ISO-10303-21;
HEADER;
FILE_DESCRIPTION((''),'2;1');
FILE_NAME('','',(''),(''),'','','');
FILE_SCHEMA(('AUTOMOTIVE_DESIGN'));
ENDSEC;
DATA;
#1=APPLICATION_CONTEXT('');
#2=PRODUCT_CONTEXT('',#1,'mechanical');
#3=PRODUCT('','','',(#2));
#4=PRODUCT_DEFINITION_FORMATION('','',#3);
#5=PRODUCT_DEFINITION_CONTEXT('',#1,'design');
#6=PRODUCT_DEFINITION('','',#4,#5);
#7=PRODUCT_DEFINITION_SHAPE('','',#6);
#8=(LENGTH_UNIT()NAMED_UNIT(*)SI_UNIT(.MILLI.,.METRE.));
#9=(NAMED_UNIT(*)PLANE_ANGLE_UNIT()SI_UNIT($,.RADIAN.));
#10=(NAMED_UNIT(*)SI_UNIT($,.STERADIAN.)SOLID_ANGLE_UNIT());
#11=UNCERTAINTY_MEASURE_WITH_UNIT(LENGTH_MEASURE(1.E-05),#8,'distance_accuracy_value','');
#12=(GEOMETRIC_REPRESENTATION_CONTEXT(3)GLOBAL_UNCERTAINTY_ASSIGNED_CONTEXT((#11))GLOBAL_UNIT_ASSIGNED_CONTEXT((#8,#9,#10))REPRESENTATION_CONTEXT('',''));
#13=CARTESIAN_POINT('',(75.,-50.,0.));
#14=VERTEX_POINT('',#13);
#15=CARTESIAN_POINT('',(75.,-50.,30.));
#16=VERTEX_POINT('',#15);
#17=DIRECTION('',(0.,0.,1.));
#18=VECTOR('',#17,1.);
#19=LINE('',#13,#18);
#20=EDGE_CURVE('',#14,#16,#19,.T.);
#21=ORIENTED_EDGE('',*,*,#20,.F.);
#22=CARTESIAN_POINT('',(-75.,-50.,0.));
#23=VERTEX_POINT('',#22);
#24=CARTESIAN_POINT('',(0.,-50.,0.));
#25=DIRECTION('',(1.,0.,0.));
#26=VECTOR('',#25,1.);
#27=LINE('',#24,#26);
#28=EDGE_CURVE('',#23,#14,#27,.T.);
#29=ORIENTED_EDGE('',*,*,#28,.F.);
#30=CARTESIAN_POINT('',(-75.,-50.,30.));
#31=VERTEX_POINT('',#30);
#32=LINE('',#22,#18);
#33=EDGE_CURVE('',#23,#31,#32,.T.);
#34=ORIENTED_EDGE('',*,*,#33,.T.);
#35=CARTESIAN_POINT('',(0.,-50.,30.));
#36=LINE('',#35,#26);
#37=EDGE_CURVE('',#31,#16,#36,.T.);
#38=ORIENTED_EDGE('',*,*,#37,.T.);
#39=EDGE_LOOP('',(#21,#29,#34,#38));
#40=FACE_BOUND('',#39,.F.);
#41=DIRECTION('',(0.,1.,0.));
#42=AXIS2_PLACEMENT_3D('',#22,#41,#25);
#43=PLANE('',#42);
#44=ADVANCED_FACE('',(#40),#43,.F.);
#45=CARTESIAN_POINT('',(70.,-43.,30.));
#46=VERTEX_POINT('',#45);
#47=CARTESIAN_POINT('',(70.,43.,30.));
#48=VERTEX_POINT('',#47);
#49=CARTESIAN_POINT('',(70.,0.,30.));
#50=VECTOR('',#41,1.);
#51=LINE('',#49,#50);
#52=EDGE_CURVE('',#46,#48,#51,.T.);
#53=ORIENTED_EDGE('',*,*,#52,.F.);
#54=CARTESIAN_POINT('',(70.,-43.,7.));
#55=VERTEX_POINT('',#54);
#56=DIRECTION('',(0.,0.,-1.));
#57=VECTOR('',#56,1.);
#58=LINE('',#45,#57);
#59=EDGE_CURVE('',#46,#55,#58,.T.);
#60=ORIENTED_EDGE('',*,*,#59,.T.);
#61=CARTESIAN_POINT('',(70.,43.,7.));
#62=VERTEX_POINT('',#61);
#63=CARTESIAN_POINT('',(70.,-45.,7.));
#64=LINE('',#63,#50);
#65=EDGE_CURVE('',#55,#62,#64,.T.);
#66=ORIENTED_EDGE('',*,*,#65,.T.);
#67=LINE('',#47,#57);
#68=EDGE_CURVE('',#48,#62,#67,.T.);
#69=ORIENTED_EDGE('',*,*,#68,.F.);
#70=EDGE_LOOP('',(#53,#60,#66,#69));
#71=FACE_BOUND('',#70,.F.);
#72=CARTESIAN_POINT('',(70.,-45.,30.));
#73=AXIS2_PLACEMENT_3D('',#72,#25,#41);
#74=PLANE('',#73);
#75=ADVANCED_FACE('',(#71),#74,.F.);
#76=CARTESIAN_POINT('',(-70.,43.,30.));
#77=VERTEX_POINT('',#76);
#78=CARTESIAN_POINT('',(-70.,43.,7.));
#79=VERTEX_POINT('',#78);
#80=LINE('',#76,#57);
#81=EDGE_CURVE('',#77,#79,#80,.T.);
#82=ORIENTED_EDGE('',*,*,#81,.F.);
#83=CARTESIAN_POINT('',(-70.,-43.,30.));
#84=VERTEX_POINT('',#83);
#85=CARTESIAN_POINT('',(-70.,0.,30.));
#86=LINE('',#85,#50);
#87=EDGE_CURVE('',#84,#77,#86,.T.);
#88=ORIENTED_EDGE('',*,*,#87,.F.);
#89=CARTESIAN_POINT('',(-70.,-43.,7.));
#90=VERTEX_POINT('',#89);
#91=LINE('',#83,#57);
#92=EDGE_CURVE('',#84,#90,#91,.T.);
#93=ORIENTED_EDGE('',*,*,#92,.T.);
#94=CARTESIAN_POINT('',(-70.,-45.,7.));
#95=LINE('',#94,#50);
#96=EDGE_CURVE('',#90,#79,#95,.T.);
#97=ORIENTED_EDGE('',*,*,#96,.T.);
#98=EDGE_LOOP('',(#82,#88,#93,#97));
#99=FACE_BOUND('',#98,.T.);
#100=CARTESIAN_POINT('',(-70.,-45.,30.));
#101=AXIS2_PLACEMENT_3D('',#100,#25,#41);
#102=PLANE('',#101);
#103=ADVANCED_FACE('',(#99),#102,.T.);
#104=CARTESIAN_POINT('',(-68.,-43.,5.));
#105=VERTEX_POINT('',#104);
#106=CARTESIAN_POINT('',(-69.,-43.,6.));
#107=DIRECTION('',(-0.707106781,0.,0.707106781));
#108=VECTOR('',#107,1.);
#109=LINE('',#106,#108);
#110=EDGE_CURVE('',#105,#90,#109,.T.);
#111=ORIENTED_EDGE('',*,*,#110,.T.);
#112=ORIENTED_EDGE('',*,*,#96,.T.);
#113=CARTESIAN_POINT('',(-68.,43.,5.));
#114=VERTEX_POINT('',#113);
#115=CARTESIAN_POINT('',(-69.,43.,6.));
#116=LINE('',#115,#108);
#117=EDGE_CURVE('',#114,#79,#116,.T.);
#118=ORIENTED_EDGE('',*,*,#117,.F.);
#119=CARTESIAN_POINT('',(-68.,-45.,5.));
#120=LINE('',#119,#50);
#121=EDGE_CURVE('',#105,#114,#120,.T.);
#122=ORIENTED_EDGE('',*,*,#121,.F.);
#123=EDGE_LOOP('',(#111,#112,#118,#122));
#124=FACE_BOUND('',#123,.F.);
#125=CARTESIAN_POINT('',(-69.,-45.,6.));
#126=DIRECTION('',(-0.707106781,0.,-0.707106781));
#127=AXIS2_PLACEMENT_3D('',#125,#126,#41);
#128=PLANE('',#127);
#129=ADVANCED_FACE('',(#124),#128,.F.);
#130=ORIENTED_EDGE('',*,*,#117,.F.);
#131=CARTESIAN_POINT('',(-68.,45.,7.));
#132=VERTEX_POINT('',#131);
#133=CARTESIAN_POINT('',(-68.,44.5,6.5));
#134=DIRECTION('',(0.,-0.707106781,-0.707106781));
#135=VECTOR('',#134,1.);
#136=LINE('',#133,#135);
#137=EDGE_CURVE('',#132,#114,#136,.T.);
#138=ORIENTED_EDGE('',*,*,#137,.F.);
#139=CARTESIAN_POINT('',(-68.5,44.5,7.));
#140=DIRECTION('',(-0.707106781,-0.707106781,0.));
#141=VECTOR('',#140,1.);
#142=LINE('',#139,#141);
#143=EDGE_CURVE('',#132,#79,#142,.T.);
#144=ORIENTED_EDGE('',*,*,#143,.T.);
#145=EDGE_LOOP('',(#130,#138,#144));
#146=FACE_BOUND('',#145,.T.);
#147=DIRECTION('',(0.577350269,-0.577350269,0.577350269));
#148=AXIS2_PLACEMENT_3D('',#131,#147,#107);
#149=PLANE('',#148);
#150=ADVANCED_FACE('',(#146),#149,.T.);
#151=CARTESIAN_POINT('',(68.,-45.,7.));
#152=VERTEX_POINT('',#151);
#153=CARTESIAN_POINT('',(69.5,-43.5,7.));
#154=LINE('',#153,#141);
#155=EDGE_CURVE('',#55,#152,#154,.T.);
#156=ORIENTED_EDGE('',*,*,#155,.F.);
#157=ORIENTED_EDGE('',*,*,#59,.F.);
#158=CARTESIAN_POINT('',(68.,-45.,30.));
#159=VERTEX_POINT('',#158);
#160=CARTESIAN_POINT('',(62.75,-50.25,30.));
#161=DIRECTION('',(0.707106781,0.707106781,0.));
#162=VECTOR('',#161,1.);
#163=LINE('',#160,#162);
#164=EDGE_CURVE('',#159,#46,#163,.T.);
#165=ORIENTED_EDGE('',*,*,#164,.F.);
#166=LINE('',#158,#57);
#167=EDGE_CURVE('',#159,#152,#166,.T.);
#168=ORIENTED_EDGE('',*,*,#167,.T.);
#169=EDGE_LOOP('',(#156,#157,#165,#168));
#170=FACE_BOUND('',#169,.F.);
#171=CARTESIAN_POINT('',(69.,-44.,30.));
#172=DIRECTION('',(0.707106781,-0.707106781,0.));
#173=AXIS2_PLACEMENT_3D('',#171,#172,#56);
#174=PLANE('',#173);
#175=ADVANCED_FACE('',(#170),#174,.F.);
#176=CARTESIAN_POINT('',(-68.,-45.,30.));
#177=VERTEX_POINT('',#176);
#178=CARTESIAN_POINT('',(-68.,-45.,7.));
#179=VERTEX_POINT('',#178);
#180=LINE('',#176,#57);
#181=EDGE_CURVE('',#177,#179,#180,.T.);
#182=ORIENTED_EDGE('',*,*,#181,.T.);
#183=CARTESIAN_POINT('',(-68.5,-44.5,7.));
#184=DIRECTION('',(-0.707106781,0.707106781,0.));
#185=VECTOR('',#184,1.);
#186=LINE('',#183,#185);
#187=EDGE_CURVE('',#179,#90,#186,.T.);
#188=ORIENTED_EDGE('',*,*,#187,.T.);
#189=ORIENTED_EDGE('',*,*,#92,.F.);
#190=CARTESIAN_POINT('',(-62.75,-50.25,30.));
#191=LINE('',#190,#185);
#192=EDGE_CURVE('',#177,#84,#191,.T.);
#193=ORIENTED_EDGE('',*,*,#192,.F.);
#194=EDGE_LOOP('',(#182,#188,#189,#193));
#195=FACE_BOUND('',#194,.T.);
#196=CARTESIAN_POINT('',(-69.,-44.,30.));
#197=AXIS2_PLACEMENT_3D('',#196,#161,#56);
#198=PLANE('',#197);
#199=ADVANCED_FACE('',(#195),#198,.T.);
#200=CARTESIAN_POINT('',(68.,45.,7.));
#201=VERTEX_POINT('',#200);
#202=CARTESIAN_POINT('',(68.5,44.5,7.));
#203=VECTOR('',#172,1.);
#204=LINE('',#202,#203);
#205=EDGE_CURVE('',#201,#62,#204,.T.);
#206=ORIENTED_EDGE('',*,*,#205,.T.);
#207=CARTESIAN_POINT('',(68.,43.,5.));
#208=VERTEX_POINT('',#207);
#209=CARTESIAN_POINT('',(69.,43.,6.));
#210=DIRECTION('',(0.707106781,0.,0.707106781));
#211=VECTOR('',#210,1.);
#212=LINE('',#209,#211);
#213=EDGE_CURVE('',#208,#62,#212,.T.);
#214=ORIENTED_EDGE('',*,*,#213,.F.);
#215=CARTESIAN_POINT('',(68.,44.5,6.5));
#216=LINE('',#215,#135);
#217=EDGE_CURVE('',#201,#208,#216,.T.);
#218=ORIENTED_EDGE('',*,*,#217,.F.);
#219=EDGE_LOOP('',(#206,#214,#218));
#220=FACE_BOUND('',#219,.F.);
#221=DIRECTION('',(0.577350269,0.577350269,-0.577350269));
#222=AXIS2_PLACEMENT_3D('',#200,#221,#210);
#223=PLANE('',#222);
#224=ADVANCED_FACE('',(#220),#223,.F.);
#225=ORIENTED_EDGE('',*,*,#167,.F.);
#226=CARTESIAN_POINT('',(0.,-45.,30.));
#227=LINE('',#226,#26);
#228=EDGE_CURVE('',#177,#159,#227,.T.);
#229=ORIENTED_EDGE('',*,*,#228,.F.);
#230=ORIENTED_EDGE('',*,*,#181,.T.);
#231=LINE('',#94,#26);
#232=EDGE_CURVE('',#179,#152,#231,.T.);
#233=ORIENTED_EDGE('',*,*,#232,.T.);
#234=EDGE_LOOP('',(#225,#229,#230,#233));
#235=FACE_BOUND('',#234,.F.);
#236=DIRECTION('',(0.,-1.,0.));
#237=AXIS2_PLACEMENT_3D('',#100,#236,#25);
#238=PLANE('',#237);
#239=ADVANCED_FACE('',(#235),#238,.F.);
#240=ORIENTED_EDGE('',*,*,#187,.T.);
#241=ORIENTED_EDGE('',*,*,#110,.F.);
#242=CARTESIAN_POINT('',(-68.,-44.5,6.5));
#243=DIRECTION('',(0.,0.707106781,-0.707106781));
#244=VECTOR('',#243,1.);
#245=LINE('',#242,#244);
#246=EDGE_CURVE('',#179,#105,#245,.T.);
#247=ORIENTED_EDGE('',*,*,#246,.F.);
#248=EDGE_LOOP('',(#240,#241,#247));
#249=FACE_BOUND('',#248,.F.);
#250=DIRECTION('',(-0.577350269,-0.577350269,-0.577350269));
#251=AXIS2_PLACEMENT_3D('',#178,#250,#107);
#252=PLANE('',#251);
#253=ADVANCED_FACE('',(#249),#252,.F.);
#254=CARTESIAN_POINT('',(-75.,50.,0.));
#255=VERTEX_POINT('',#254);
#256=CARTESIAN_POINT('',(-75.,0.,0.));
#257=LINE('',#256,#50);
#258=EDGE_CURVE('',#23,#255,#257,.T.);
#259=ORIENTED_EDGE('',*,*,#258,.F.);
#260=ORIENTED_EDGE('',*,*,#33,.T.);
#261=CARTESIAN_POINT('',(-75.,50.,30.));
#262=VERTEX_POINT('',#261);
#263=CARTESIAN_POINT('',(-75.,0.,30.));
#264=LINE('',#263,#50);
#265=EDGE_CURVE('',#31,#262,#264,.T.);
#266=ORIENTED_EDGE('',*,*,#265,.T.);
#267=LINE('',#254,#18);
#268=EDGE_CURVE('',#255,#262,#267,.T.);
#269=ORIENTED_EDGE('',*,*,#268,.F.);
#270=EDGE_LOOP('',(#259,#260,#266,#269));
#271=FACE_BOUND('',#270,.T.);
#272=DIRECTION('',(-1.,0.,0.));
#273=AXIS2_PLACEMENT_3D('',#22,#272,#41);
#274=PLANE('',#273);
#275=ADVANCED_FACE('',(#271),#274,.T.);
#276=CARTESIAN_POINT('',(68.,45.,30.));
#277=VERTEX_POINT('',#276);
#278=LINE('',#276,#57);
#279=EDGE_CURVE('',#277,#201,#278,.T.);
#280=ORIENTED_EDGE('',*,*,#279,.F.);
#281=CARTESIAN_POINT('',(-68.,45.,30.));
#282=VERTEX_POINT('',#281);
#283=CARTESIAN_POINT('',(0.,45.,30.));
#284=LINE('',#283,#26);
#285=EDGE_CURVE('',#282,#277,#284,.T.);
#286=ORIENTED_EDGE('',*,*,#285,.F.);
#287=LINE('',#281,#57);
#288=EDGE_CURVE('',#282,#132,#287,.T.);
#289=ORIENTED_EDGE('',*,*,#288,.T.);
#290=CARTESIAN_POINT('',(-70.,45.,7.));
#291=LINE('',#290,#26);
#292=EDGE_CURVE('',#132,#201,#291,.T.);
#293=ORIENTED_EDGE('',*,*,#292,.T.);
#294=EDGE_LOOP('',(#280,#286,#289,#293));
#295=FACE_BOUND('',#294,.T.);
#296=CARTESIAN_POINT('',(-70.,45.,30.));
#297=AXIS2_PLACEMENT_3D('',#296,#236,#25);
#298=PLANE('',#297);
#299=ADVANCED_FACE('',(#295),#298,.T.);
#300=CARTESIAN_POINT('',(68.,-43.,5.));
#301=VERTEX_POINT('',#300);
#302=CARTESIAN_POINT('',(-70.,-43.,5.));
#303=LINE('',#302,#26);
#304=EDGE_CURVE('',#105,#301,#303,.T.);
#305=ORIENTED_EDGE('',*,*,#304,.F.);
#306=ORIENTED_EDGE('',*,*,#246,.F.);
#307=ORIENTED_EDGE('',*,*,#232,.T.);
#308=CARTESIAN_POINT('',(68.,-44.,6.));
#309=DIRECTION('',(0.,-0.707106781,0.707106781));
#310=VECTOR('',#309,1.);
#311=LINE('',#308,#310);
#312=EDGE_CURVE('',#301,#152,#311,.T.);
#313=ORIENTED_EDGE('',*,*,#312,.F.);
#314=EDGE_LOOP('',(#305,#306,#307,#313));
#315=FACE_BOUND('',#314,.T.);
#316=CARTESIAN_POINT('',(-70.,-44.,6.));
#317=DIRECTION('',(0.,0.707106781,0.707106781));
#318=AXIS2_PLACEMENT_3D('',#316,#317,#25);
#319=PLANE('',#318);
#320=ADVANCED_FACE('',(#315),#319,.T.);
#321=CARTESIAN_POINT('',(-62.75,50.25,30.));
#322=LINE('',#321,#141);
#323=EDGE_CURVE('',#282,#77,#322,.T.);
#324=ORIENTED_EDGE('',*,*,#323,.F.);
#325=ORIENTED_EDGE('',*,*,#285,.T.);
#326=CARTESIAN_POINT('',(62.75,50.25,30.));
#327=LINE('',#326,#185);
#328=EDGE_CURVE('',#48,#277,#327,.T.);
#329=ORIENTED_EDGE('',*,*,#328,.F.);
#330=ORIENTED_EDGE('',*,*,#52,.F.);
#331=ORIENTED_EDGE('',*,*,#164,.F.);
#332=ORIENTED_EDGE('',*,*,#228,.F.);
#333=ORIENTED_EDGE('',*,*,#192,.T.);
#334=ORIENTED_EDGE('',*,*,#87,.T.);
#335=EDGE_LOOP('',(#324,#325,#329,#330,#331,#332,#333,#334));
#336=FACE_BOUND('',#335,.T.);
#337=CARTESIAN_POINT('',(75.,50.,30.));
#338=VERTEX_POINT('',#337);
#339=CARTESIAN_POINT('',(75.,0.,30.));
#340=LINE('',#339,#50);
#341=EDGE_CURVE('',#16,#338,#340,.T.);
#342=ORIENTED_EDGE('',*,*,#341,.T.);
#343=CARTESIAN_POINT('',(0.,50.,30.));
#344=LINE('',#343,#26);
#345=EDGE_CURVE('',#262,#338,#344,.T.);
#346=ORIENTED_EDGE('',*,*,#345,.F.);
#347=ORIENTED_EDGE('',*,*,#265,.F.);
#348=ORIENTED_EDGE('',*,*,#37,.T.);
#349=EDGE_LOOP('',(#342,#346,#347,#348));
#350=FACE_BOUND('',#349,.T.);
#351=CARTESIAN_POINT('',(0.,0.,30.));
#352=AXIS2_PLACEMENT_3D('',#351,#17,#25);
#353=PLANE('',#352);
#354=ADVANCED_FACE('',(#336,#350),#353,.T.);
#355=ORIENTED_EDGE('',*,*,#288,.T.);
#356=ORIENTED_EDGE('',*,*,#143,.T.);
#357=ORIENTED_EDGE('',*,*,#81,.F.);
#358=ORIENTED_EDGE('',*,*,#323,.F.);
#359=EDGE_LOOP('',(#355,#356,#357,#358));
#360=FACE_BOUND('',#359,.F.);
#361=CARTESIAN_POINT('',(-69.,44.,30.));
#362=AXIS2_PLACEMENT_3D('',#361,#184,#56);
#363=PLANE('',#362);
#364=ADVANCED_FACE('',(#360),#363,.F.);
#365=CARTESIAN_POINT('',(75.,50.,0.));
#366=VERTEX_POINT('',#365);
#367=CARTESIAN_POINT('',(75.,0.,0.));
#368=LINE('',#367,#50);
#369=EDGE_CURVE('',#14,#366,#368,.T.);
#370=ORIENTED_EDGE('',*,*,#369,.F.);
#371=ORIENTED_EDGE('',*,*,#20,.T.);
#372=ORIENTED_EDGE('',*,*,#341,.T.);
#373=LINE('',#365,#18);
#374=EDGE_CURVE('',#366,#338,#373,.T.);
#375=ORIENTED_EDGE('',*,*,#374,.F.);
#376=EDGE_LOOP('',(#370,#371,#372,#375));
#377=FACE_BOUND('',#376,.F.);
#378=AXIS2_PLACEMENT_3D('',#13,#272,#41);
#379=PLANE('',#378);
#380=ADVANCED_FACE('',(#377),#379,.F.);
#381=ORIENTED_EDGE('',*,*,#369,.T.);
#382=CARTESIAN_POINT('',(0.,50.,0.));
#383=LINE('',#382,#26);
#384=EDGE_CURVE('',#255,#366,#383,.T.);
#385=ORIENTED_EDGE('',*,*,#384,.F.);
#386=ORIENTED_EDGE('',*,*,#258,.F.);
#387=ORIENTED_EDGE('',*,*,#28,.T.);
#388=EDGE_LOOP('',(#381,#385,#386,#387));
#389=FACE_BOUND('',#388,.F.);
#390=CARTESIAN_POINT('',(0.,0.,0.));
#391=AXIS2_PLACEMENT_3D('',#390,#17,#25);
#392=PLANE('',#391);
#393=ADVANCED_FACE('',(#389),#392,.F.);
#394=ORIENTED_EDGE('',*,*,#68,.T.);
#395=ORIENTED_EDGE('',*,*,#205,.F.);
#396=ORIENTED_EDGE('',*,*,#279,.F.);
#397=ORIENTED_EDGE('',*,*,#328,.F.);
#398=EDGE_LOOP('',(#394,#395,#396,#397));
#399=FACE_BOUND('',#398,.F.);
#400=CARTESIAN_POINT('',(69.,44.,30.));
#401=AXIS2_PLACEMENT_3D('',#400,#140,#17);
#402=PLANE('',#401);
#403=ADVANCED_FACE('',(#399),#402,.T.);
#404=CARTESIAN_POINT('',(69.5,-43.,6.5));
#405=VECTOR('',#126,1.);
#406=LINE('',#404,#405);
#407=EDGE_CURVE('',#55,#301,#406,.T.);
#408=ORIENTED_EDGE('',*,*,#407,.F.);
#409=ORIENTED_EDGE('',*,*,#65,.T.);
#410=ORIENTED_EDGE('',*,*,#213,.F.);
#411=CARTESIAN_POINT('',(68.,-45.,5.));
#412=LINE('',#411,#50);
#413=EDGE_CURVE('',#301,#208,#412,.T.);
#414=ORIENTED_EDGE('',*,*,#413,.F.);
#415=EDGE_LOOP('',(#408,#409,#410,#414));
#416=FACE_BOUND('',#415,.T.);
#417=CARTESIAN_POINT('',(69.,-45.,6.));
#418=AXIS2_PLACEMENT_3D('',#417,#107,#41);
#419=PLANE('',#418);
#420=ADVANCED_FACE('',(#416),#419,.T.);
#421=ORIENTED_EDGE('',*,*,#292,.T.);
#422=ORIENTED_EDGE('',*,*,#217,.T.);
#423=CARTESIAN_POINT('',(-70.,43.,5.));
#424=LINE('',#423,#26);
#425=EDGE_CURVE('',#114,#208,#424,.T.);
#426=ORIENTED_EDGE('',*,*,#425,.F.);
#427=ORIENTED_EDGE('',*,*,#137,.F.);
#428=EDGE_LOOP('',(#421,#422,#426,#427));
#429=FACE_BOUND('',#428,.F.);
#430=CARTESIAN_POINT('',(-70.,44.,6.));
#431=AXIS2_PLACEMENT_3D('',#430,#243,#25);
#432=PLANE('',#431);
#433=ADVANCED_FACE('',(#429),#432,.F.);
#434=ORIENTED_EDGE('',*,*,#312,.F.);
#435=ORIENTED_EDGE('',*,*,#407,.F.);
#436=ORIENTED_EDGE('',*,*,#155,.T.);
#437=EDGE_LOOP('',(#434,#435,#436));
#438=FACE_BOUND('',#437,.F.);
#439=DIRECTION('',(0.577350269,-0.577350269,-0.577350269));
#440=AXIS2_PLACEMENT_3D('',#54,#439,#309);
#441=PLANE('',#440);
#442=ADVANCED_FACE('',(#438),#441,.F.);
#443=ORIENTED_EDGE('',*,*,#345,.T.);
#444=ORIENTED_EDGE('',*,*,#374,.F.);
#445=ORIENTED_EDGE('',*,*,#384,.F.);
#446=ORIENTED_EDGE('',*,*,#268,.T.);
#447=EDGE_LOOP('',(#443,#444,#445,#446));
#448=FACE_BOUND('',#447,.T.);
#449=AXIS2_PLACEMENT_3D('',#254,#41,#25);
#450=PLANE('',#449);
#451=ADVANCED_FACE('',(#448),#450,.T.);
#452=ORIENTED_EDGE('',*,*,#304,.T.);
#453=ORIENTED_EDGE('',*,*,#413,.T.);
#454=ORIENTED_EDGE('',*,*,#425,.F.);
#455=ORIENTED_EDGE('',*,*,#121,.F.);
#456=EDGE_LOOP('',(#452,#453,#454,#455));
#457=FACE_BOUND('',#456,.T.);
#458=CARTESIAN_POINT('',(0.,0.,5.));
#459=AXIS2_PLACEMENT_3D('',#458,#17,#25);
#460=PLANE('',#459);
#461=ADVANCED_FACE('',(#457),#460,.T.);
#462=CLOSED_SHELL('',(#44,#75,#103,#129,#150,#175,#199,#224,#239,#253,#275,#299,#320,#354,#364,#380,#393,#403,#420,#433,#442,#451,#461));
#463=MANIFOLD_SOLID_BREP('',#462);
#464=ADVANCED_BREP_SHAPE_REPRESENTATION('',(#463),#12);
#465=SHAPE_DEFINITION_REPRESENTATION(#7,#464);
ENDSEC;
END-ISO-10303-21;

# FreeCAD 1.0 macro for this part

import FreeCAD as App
import Part
import Sketcher


def edges_at(feature, points):
    """Names of the edges that pass closest to the given points."""
    edges = feature.Shape.Edges
    near = lambda p: min(range(len(edges)), key=lambda i: edges[i].distToShape(Part.Vertex(*p))[0])
    return sorted({f"Edge{near(p) + 1}" for p in points})


def add_polygon(sketch, points):
    """Adds a closed chain of lines whose ends are joined by coincident constraints."""
    first, n = sketch.GeometryCount, len(points)
    for a, b in zip(points, points[1:] + points[:1]):
        sketch.addGeometry(Part.LineSegment(App.Vector(*a, 0), App.Vector(*b, 0)), False)
    for i in range(n):
        sketch.addConstraint(Sketcher.Constraint("Coincident", first + i, 2, first + (i + 1) % n, 1))

doc = App.newDocument("Part")
body = doc.addObject("PartDesign::Body", "Body")

# Sketch on XY plane
sketch1 = doc.addObject("Sketcher::SketchObject", "Sketch")
body.addObject(sketch1)
sketch1.AttachmentSupport = (doc.XY_Plane, [""])
sketch1.MapMode = "FlatFace"
add_polygon(sketch1, [(-75, 50), (-75, -50), (75, -50), (75, 50)])  # lines 0-3
sketch1.addConstraint([
    Sketcher.Constraint("Vertical", 0),
    Sketcher.Constraint("Horizontal", 1),
    Sketcher.Constraint("Vertical", 2),
    Sketcher.Constraint("Horizontal", 3),
    Sketcher.Constraint("Symmetric", 0, 2, 2, 2, -1, 1),
    Sketcher.Constraint("DistanceX", 1, 1, 1, 2, 150.0),
    Sketcher.Constraint("DistanceY", 0, 2, 0, 1, 100.0),
])
pad1 = doc.addObject("PartDesign::Pad", "Pad")
body.addObject(pad1)
pad1.Profile = sketch1
pad1.Length = 30

# Sketch on XY plane
sketch2 = doc.addObject("Sketcher::SketchObject", "Sketch001")
body.addObject(sketch2)
sketch2.AttachmentSupport = (doc.XY_Plane, [""])
sketch2.MapMode = "FlatFace"
sketch2.AttachmentOffset = App.Placement(App.Vector(0, 0, 30), App.Rotation())
add_polygon(sketch2, [(-70, 45), (-70, -45), (70, -45), (70, 45)])  # lines 0-3
sketch2.addConstraint([
    Sketcher.Constraint("Vertical", 0),
    Sketcher.Constraint("Horizontal", 1),
    Sketcher.Constraint("Vertical", 2),
    Sketcher.Constraint("Horizontal", 3),
    Sketcher.Constraint("Symmetric", 0, 2, 2, 2, -1, 1),
    Sketcher.Constraint("DistanceX", 1, 1, 1, 2, 140.0),
    Sketcher.Constraint("DistanceY", 0, 2, 0, 1, 90.0),
])
pocket1 = doc.addObject("PartDesign::Pocket", "Pocket")
body.addObject(pocket1)
pocket1.Profile = sketch2
pocket1.Length = 25
doc.recompute()

chamfer = doc.addObject("PartDesign::Chamfer", "Chamfer")
body.addObject(chamfer)
chamfer.Base = (pocket1, edges_at(pocket1, [
    (-70, 0, 5),
    (0, -45, 5),
    (70, 0, 5),
    (0, 45, 5),
    (-70, 45, 17.5),
    (70, 45, 17.5),
    (70, -45, 17.5),
    (-70, -45, 17.5),
]))
chamfer.Size = 2

doc.recompute()
